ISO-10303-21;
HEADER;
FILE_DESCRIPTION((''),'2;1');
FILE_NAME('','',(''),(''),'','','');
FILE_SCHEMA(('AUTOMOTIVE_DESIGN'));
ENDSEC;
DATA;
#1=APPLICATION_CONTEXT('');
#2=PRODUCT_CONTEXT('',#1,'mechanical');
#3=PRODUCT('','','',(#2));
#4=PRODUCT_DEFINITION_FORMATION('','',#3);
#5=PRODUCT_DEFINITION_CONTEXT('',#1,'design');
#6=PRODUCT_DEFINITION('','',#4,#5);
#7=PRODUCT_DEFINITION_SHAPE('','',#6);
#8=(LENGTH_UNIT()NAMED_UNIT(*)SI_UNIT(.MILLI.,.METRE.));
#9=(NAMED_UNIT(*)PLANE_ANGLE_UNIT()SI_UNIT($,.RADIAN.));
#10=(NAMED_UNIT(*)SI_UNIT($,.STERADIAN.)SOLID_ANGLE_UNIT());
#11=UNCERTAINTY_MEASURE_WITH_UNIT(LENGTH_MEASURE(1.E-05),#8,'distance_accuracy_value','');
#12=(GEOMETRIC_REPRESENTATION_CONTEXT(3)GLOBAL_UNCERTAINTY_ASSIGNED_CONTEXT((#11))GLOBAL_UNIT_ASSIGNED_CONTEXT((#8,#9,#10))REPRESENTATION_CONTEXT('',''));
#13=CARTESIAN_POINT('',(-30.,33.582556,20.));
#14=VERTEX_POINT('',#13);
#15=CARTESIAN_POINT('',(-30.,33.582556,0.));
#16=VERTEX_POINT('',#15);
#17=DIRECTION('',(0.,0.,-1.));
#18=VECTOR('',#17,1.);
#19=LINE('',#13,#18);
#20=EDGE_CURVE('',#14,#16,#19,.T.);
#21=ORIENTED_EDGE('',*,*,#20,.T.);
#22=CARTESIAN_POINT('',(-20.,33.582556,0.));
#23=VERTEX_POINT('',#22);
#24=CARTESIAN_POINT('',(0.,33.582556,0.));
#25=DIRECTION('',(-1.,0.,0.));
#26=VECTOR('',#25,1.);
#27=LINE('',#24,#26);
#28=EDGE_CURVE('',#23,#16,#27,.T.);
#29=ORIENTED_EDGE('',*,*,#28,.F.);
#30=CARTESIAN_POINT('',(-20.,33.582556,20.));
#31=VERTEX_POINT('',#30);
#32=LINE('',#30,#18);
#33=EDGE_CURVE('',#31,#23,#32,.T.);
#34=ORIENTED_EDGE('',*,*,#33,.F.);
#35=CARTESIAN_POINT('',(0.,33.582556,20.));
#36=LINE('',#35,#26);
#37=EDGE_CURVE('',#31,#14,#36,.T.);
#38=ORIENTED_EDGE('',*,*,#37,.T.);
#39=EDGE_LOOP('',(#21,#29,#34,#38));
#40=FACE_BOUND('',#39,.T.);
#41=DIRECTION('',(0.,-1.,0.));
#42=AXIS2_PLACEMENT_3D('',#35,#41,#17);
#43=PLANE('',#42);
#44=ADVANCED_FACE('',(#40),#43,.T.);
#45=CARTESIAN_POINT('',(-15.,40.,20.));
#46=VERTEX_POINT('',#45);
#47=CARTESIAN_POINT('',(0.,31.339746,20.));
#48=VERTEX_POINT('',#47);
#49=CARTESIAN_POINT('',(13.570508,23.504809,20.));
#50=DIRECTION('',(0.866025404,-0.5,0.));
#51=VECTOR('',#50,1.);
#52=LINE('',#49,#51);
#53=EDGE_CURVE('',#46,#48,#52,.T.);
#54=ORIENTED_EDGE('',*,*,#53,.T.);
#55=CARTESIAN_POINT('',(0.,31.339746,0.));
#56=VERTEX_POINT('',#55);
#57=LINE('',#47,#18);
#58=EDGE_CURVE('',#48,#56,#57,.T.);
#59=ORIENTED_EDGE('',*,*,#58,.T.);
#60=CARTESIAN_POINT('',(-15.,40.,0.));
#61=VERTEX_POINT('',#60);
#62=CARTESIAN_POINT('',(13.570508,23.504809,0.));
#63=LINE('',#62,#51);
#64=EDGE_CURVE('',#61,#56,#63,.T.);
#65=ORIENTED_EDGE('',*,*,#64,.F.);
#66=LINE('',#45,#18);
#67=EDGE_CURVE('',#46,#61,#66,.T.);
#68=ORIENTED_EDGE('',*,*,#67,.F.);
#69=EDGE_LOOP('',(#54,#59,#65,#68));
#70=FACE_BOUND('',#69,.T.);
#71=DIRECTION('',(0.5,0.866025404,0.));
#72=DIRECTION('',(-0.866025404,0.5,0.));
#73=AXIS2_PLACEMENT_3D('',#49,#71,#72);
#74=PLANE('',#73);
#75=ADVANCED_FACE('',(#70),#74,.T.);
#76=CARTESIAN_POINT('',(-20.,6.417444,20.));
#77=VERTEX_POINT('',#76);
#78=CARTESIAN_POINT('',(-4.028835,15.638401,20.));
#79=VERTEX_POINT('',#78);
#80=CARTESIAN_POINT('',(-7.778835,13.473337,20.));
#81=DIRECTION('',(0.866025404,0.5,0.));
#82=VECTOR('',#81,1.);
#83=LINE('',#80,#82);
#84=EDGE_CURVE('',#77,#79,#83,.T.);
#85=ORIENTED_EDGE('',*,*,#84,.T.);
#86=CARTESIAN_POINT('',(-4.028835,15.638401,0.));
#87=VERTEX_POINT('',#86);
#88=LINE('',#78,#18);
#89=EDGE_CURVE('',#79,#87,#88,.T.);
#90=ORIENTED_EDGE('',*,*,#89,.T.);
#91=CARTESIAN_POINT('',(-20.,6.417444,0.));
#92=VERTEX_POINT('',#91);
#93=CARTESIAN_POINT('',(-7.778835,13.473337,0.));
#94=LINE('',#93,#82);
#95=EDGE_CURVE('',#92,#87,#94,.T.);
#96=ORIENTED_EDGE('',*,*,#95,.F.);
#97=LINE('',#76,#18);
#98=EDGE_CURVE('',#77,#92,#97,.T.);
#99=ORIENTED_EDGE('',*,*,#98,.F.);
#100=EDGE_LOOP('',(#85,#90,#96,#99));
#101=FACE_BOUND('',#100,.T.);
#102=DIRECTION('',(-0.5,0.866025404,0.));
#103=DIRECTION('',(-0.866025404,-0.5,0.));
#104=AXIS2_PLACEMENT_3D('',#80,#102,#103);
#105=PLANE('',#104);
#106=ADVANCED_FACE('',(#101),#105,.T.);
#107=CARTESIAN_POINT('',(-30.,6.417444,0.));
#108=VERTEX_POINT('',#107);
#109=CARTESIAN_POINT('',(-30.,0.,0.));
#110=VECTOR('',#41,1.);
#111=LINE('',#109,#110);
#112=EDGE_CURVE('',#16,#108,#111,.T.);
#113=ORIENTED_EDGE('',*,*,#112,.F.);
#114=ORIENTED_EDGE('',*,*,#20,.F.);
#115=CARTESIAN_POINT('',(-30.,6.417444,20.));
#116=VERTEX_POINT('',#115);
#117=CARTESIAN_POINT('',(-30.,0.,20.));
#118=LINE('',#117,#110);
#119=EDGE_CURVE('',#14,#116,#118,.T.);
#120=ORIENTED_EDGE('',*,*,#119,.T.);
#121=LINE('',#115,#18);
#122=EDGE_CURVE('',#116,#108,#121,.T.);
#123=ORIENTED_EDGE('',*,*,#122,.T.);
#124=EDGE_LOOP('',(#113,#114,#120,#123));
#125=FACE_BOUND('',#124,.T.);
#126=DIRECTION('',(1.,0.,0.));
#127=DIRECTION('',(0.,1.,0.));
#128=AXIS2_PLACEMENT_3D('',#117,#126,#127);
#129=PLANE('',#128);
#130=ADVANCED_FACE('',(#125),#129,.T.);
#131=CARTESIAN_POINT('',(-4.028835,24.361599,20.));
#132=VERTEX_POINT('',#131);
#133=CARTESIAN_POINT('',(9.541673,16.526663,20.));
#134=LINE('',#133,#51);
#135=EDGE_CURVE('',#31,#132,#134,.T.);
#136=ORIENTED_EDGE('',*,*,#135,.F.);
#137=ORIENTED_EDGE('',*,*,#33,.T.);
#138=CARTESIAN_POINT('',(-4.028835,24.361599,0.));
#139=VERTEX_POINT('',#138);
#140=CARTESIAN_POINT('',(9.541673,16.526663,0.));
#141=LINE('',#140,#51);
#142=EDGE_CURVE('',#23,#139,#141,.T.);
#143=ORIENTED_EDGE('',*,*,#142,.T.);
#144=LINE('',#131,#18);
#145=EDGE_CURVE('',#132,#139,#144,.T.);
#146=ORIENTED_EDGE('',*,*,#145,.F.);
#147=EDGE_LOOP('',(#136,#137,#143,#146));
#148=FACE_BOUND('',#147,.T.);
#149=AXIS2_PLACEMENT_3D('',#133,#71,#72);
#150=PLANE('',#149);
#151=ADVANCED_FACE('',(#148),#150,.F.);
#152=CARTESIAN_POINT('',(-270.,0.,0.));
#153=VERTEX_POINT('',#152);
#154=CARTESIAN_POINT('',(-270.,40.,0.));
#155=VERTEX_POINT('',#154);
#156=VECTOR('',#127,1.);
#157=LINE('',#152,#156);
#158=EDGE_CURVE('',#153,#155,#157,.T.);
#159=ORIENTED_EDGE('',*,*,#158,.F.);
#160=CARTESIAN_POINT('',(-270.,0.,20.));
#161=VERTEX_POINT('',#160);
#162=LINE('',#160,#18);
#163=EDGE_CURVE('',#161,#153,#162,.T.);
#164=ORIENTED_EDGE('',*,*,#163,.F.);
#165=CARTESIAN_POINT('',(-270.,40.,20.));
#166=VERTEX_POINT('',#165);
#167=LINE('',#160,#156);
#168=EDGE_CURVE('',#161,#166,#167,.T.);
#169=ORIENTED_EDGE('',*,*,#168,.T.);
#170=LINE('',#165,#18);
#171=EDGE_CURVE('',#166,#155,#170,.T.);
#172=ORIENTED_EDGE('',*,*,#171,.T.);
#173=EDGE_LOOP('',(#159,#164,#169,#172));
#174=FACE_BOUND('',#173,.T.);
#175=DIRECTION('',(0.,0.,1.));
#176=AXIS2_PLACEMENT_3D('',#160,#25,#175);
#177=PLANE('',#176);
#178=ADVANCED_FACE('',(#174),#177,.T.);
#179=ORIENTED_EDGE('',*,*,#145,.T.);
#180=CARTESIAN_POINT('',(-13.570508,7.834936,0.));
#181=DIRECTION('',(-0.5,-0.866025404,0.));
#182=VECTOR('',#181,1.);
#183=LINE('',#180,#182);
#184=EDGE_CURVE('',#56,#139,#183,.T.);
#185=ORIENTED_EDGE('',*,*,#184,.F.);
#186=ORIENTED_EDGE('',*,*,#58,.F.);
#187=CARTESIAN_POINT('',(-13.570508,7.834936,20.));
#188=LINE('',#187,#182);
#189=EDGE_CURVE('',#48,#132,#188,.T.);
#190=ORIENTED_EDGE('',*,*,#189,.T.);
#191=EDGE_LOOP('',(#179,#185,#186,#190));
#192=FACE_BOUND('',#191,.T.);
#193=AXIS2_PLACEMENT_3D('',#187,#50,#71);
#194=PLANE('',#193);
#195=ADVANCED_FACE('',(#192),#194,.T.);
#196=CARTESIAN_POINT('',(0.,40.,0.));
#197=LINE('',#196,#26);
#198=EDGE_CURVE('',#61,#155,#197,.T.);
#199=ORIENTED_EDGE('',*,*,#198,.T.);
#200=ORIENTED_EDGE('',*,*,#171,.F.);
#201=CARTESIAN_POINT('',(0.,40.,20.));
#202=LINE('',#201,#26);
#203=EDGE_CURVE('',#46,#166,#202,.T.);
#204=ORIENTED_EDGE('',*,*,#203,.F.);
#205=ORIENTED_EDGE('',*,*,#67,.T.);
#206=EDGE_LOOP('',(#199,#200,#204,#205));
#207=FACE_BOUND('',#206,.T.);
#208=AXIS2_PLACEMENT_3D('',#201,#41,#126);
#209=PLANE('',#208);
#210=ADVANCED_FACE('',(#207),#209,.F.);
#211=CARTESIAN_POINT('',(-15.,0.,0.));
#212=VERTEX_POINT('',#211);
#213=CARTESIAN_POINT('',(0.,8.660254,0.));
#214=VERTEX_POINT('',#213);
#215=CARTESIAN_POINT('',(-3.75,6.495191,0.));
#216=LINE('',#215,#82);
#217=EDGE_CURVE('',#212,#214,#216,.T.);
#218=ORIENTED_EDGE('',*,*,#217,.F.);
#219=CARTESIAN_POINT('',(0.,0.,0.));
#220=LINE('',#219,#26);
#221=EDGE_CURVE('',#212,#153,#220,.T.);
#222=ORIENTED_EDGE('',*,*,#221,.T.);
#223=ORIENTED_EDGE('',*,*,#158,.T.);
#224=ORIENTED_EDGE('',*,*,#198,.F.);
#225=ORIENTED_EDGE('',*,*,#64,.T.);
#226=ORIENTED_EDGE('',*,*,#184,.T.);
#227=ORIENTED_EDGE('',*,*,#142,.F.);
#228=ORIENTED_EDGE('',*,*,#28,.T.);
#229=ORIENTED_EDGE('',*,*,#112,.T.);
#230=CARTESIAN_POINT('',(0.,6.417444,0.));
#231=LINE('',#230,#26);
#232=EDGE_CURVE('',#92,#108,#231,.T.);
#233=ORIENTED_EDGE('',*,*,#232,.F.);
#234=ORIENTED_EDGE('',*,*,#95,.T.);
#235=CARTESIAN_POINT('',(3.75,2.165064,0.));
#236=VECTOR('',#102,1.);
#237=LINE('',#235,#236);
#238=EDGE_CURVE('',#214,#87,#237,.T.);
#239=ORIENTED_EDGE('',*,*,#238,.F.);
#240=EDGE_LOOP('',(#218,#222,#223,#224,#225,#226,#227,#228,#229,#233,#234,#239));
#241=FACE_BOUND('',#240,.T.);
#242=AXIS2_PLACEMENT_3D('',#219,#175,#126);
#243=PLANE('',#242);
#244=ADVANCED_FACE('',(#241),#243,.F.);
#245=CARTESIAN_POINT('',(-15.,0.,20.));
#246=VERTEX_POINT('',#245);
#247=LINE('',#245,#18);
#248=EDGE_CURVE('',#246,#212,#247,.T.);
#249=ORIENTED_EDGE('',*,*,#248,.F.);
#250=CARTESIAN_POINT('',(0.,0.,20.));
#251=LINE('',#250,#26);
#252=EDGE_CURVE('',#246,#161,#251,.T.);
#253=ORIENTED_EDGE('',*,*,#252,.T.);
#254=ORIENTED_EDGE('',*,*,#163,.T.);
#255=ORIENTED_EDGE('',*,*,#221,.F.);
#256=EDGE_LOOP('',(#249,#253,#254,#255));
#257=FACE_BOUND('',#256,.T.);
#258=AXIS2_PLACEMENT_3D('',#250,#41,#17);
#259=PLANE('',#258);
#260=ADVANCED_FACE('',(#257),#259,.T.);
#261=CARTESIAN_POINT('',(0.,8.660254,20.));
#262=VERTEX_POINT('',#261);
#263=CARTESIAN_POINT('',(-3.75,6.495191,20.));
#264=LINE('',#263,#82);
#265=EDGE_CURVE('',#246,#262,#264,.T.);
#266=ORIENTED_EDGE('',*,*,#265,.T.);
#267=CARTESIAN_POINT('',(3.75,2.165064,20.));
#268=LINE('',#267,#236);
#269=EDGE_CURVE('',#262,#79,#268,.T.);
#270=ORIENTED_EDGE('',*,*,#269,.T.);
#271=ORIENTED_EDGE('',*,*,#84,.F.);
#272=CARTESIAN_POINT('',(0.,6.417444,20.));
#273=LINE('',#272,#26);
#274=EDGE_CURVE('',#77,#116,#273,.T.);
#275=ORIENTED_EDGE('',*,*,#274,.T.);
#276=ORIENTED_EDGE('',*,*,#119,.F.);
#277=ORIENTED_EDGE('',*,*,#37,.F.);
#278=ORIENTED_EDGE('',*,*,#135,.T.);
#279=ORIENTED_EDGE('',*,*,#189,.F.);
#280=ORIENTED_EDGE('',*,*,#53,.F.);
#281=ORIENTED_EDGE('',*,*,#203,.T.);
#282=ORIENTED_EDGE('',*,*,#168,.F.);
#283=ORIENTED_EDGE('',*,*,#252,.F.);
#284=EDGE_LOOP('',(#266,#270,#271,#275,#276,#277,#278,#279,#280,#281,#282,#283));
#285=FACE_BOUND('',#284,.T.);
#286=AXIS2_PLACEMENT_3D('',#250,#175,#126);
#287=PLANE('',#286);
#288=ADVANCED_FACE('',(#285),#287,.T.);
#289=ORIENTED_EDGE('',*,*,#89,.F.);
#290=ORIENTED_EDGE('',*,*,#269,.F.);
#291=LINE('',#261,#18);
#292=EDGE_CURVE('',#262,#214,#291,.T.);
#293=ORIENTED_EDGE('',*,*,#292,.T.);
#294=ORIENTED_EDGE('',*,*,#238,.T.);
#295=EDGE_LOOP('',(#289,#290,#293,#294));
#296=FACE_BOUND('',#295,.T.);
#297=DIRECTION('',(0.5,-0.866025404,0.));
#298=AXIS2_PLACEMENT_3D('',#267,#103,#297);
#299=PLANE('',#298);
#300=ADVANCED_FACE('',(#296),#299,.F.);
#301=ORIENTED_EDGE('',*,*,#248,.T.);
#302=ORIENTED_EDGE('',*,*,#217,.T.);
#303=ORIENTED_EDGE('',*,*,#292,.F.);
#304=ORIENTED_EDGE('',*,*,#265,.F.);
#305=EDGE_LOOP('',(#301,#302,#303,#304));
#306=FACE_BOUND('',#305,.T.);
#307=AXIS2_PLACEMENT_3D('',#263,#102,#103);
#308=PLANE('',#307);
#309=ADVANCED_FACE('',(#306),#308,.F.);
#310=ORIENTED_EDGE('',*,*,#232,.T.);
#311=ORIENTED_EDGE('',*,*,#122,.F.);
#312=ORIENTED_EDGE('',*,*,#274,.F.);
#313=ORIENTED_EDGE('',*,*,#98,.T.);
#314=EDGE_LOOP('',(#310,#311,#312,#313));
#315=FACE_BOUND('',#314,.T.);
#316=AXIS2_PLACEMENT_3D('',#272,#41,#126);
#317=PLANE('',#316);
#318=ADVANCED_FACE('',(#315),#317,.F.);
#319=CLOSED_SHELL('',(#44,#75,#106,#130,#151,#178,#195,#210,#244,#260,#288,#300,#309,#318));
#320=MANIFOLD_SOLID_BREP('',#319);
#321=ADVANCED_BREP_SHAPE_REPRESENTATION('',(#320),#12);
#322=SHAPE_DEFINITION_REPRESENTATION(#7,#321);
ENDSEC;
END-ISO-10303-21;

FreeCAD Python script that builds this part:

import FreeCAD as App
import Part
import Sketcher

V = App.Vector
Q = App.Units.Quantity


def add_polygon(sketch, points):
    """Adds a closed chain of lines whose ends are joined by coincident constraints."""
    first, n = sketch.GeometryCount, len(points)
    for a, b in zip(points, points[1:] + points[:1]):
        sketch.addGeometry(Part.LineSegment(App.Vector(*a, 0), App.Vector(*b, 0)), False)
    for i in range(n):
        sketch.addConstraint(Sketcher.Constraint("Coincident", first + i, 2, first + (i + 1) % n, 1))

doc = App.newDocument("Part")
body = doc.addObject("PartDesign::Body", "Body")

# Sketch on XY plane
sketch1 = doc.addObject("Sketcher::SketchObject", "Sketch")
body.addObject(sketch1)
sketch1.AttachmentSupport = (doc.XY_Plane, [""])
sketch1.MapMode = "FlatFace"
add_polygon(sketch1, [(-270, 0), (-15, 0), (0, 9), (-4, 16), (-20, 6), (-30, 6), (-30, 34), (-20, 34), (-4, 24), (0, 31), (-15, 40), (-270, 40)])  # lines 0-11
sketch1.addConstraint([
    Sketcher.Constraint("Horizontal", 0),
    Sketcher.Constraint("Horizontal", 4),
    Sketcher.Constraint("Vertical", 5),
    Sketcher.Constraint("Horizontal", 6),
    Sketcher.Constraint("Horizontal", 10),
    Sketcher.Constraint("Vertical", 11),
    Sketcher.Constraint("PointOnObject", 0, 2, -1),
    Sketcher.Constraint("PointOnObject", 1, 2, -2),
    Sketcher.Constraint("PointOnObject", 8, 2, -2),
    Sketcher.Constraint("Perpendicular", 1, 2),
    Sketcher.Constraint("Perpendicular", 2, 3),
    Sketcher.Constraint("Perpendicular", 7, 8),
    Sketcher.Constraint("Perpendicular", 8, 9),
    Sketcher.Constraint("Vertical", 3, 2, 6, 2),
    Sketcher.Constraint("Vertical", 2, 2, 7, 2),
    Sketcher.Constraint("Vertical", 0, 2, 9, 2),
    Sketcher.Constraint("Equal", 3, 7),
    Sketcher.Constraint("DistanceX", 0, 1, 0, 2, 255.0),
    Sketcher.Constraint("DistanceX", 4, 2, 4, 1, 10.0),
    Sketcher.Constraint("DistanceY", 11, 2, 11, 1, 40.0),
    Sketcher.Constraint("Angle", 1, Q("30 deg")),
    Sketcher.Constraint("DistanceX", 0, 2, -1, 1, 15.0),
    Sketcher.Constraint("DistanceX", 3, 2, -1, 1, 20.0),
    Sketcher.Constraint("DistanceY", 5, 1, 5, 2, 27.165111),
])
pad1 = doc.addObject("PartDesign::Pad", "Pad")
body.addObject(pad1)
pad1.Profile = sketch1
pad1.Length = 20

doc.recompute()
